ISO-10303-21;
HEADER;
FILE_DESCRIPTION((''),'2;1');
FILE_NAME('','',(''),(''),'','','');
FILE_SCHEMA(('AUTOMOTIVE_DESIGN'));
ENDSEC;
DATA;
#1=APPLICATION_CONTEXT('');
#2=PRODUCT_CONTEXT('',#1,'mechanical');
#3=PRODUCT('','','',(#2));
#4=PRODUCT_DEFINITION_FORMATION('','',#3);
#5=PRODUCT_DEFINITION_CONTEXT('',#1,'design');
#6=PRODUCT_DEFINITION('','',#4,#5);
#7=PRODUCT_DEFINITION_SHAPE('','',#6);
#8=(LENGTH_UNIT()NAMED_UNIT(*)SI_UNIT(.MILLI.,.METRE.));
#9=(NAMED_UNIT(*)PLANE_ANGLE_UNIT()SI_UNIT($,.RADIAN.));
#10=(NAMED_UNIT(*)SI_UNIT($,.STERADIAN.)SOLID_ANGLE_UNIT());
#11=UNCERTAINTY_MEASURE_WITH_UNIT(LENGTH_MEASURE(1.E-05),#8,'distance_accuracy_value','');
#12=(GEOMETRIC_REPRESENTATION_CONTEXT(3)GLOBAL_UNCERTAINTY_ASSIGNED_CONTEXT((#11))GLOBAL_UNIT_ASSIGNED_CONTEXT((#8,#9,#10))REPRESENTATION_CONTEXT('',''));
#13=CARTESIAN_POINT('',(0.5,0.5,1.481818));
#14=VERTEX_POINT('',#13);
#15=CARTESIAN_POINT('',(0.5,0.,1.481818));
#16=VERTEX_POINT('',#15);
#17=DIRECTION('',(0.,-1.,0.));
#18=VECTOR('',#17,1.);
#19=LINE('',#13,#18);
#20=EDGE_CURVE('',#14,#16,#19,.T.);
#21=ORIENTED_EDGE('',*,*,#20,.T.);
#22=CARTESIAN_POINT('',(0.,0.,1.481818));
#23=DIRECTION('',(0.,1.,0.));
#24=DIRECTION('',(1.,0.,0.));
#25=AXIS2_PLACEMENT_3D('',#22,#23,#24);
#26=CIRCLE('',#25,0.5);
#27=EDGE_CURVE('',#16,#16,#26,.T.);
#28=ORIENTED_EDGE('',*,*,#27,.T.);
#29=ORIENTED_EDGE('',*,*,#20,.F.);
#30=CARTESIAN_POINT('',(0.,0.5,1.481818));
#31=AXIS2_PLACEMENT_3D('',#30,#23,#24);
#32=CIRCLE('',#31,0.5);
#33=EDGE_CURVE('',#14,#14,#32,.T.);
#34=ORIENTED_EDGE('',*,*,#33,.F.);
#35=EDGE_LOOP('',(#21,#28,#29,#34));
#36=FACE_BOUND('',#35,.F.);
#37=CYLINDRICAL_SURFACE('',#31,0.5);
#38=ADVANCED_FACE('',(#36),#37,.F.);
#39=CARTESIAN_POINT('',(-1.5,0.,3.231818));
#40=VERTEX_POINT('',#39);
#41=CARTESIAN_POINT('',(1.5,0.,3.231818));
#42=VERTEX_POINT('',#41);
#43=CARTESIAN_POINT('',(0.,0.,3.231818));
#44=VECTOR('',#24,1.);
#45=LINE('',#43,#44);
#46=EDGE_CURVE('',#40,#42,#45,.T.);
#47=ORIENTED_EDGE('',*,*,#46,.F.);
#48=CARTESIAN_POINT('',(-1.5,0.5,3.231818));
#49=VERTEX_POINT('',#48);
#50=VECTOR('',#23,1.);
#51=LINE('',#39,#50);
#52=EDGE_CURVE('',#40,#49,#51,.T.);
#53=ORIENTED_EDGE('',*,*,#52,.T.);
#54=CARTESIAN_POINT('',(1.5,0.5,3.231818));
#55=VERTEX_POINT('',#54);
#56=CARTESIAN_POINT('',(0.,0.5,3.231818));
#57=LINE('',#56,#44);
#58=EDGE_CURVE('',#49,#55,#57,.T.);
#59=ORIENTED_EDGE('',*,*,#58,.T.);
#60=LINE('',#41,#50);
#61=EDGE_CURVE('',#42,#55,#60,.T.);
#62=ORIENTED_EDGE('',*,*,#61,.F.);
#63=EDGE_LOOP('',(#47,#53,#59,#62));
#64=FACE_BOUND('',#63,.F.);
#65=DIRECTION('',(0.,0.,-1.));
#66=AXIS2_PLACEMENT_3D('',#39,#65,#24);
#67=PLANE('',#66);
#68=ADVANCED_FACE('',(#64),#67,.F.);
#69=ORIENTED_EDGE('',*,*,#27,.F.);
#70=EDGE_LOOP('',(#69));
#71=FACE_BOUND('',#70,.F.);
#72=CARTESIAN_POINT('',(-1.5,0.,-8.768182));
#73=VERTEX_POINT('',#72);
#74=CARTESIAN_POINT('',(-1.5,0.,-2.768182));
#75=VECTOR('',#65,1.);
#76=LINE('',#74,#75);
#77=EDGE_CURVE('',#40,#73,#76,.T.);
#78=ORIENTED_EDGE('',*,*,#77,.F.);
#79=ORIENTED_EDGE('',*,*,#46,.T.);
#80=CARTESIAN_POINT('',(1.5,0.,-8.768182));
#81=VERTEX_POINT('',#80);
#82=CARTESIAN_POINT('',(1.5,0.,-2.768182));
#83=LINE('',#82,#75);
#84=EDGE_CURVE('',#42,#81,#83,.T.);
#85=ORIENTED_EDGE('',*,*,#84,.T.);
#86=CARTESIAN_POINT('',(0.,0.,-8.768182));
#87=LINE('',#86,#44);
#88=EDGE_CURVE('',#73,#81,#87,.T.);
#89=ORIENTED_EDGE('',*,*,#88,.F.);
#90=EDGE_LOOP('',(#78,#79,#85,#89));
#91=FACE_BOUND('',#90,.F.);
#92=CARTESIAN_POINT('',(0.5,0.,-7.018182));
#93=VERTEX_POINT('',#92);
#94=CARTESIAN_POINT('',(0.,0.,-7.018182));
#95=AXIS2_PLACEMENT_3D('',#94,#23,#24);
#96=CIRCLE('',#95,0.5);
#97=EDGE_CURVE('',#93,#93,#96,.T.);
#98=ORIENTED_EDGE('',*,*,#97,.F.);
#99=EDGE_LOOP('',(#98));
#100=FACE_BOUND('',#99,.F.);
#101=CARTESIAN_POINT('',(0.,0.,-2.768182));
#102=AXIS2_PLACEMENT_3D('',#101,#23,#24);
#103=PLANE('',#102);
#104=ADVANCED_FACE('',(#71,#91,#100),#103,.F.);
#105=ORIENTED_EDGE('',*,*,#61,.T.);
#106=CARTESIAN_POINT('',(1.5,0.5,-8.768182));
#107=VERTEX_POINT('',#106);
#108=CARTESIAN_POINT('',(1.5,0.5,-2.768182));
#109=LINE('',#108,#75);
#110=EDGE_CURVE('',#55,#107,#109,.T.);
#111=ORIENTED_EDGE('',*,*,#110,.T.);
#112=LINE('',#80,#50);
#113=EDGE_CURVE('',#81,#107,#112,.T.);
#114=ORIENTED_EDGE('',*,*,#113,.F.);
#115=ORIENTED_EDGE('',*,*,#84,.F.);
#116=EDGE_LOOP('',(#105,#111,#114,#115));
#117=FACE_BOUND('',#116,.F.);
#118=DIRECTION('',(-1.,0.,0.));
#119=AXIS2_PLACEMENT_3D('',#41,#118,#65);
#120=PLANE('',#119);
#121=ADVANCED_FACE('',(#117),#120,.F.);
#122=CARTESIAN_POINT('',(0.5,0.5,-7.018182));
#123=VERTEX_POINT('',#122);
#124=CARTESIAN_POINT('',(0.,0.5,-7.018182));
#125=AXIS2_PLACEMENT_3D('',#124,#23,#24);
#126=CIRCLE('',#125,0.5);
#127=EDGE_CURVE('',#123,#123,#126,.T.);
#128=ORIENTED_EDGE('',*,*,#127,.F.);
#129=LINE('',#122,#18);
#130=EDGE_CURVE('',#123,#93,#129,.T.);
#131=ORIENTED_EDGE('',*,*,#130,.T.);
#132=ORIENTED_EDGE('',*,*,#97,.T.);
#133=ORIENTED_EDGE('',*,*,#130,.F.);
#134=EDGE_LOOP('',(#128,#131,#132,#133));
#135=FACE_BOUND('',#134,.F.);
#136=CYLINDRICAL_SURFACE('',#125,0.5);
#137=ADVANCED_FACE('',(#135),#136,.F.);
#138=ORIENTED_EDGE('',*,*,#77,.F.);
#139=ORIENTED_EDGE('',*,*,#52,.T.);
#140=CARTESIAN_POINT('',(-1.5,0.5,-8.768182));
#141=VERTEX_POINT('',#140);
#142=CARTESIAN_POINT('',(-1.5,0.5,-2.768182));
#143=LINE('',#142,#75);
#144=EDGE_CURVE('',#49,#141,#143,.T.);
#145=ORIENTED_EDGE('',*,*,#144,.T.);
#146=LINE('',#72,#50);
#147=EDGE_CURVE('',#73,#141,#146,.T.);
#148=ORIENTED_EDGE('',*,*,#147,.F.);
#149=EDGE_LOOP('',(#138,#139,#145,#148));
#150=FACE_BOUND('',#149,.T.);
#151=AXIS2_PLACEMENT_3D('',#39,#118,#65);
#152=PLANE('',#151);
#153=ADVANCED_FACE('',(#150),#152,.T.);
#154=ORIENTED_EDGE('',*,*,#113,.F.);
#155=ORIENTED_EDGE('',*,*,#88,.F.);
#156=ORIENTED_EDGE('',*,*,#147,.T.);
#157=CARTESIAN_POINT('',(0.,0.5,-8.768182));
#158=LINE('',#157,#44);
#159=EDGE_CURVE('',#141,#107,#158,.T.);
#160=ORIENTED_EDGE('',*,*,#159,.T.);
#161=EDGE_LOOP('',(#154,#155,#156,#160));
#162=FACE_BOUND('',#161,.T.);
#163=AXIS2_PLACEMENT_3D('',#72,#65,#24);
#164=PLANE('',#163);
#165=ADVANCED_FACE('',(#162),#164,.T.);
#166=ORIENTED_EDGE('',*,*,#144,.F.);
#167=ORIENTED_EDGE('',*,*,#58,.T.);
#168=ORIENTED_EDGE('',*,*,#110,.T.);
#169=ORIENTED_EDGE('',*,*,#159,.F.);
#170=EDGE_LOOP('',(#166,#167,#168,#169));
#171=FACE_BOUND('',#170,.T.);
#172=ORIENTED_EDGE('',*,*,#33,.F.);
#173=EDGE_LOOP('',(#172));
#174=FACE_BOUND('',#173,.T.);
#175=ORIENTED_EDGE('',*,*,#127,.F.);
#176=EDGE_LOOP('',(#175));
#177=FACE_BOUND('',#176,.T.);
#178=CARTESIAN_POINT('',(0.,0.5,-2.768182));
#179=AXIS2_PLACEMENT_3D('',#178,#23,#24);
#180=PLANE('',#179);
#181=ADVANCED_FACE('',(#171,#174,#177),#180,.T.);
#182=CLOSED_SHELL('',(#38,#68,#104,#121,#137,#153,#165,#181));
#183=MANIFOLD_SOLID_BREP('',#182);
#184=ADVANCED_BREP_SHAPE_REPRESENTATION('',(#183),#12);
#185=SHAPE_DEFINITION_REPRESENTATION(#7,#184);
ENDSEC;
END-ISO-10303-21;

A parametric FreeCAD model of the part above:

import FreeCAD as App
import Part
import Sketcher
Q = App.Units.Quantity


def add_polygon(sketch, points):
    """Adds a closed chain of lines whose ends are joined by coincident constraints."""
    first, n = sketch.GeometryCount, len(points)
    for a, b in zip(points, points[1:] + points[:1]):
        sketch.addGeometry(Part.LineSegment(App.Vector(*a, 0), App.Vector(*b, 0)), False)
    for i in range(n):
        sketch.addConstraint(Sketcher.Constraint("Coincident", first + i, 2, first + (i + 1) % n, 1))

doc = App.newDocument("Part")
params = doc.addObject("Spreadsheet::Sheet", "Params")
for row, (alias, value) in enumerate([
    ("sketch1_width", "3 mm"),
    ("sketch1_height", "12 mm"),
    ("pad1_length", "0.5 mm"),
    ("sketch2_diameter", "1 mm"),
    ("pocket1_length", "1 mm"),
], start=1):
    params.set(f"A{row}", alias)
    params.set(f"B{row}", "=" + value)
    params.setAlias(f"B{row}", alias)

body = doc.addObject("PartDesign::Body", "Body")

# Sketch on XZ plane
sketch1 = body.newObject("Sketcher::SketchObject", "Sketch")
sketch1.AttachmentSupport = (doc.getObject("XZ_Plane"), [""])
sketch1.MapMode = "FlatFace"
add_polygon(sketch1, [(-1.5, -8.8), (-1.5, 3.2), (1.5, 3.2), (1.5, -8.8)])  # lines 0-3
sketch1.addConstraint(Sketcher.Constraint("Vertical", 0))
sketch1.addConstraint(Sketcher.Constraint("Horizontal", 1))
sketch1.addConstraint(Sketcher.Constraint("Vertical", 2))
sketch1.addConstraint(Sketcher.Constraint("Horizontal", 3))
sketch1.addConstraint(Sketcher.Constraint("DistanceX", 1, 1, 1, 2, Q("3 mm")))
sketch1.addConstraint(Sketcher.Constraint("DistanceY", 0, 1, 0, 2, Q("12 mm")))
sketch1.addConstraint(Sketcher.Constraint("DistanceX", 0, 2, -1, 1, Q("1.5 mm")))
sketch1.addConstraint(Sketcher.Constraint("DistanceY", -1, 1, 0, 2, Q("3.231818 mm")))
sketch1.setExpression("Constraints[8]", "Params.sketch1_width")
sketch1.setExpression("Constraints[9]", "Params.sketch1_height")
pad1 = body.newObject("PartDesign::Pad", "Pad")
pad1.Profile = sketch1
pad1.setExpression("Length", "Params.pad1_length")
pad1.Reversed = True

# Sketch on XZ plane
sketch2 = body.newObject("Sketcher::SketchObject", "Sketch001")
sketch2.AttachmentSupport = (doc.getObject("XZ_Plane"), [""])
sketch2.MapMode = "FlatFace"
sketch2.AttachmentOffset = App.Placement(App.Vector(0, 0, -0.5), App.Rotation())
sketch2.addGeometry(Part.Circle(App.Vector(0, -7, 0), App.Vector(0, 0, 1), 0.5), False)
sketch2.addGeometry(Part.Circle(App.Vector(0, 1.5, 0), App.Vector(0, 0, 1), 0.5), False)
sketch2.addConstraint(Sketcher.Constraint("Equal", 0, 1))
sketch2.addConstraint(Sketcher.Constraint("PointOnObject", 0, 3, -2))
sketch2.addConstraint(Sketcher.Constraint("PointOnObject", 1, 3, -2))
sketch2.addConstraint(Sketcher.Constraint("Diameter", 0, Q("1 mm")))
sketch2.addConstraint(Sketcher.Constraint("DistanceY", 0, 3, 1, 3, Q("8.5 mm")))
sketch2.addConstraint(Sketcher.Constraint("DistanceY", 0, 3, -1, 1, Q("7.018182 mm")))
sketch2.setExpression("Constraints[3]", "Params.sketch2_diameter")
pocket1 = body.newObject("PartDesign::Pocket", "Pocket")
pocket1.Profile = sketch2
pocket1.setExpression("Length", "Params.pocket1_length")
pocket1.Reversed = True

doc.recompute()
